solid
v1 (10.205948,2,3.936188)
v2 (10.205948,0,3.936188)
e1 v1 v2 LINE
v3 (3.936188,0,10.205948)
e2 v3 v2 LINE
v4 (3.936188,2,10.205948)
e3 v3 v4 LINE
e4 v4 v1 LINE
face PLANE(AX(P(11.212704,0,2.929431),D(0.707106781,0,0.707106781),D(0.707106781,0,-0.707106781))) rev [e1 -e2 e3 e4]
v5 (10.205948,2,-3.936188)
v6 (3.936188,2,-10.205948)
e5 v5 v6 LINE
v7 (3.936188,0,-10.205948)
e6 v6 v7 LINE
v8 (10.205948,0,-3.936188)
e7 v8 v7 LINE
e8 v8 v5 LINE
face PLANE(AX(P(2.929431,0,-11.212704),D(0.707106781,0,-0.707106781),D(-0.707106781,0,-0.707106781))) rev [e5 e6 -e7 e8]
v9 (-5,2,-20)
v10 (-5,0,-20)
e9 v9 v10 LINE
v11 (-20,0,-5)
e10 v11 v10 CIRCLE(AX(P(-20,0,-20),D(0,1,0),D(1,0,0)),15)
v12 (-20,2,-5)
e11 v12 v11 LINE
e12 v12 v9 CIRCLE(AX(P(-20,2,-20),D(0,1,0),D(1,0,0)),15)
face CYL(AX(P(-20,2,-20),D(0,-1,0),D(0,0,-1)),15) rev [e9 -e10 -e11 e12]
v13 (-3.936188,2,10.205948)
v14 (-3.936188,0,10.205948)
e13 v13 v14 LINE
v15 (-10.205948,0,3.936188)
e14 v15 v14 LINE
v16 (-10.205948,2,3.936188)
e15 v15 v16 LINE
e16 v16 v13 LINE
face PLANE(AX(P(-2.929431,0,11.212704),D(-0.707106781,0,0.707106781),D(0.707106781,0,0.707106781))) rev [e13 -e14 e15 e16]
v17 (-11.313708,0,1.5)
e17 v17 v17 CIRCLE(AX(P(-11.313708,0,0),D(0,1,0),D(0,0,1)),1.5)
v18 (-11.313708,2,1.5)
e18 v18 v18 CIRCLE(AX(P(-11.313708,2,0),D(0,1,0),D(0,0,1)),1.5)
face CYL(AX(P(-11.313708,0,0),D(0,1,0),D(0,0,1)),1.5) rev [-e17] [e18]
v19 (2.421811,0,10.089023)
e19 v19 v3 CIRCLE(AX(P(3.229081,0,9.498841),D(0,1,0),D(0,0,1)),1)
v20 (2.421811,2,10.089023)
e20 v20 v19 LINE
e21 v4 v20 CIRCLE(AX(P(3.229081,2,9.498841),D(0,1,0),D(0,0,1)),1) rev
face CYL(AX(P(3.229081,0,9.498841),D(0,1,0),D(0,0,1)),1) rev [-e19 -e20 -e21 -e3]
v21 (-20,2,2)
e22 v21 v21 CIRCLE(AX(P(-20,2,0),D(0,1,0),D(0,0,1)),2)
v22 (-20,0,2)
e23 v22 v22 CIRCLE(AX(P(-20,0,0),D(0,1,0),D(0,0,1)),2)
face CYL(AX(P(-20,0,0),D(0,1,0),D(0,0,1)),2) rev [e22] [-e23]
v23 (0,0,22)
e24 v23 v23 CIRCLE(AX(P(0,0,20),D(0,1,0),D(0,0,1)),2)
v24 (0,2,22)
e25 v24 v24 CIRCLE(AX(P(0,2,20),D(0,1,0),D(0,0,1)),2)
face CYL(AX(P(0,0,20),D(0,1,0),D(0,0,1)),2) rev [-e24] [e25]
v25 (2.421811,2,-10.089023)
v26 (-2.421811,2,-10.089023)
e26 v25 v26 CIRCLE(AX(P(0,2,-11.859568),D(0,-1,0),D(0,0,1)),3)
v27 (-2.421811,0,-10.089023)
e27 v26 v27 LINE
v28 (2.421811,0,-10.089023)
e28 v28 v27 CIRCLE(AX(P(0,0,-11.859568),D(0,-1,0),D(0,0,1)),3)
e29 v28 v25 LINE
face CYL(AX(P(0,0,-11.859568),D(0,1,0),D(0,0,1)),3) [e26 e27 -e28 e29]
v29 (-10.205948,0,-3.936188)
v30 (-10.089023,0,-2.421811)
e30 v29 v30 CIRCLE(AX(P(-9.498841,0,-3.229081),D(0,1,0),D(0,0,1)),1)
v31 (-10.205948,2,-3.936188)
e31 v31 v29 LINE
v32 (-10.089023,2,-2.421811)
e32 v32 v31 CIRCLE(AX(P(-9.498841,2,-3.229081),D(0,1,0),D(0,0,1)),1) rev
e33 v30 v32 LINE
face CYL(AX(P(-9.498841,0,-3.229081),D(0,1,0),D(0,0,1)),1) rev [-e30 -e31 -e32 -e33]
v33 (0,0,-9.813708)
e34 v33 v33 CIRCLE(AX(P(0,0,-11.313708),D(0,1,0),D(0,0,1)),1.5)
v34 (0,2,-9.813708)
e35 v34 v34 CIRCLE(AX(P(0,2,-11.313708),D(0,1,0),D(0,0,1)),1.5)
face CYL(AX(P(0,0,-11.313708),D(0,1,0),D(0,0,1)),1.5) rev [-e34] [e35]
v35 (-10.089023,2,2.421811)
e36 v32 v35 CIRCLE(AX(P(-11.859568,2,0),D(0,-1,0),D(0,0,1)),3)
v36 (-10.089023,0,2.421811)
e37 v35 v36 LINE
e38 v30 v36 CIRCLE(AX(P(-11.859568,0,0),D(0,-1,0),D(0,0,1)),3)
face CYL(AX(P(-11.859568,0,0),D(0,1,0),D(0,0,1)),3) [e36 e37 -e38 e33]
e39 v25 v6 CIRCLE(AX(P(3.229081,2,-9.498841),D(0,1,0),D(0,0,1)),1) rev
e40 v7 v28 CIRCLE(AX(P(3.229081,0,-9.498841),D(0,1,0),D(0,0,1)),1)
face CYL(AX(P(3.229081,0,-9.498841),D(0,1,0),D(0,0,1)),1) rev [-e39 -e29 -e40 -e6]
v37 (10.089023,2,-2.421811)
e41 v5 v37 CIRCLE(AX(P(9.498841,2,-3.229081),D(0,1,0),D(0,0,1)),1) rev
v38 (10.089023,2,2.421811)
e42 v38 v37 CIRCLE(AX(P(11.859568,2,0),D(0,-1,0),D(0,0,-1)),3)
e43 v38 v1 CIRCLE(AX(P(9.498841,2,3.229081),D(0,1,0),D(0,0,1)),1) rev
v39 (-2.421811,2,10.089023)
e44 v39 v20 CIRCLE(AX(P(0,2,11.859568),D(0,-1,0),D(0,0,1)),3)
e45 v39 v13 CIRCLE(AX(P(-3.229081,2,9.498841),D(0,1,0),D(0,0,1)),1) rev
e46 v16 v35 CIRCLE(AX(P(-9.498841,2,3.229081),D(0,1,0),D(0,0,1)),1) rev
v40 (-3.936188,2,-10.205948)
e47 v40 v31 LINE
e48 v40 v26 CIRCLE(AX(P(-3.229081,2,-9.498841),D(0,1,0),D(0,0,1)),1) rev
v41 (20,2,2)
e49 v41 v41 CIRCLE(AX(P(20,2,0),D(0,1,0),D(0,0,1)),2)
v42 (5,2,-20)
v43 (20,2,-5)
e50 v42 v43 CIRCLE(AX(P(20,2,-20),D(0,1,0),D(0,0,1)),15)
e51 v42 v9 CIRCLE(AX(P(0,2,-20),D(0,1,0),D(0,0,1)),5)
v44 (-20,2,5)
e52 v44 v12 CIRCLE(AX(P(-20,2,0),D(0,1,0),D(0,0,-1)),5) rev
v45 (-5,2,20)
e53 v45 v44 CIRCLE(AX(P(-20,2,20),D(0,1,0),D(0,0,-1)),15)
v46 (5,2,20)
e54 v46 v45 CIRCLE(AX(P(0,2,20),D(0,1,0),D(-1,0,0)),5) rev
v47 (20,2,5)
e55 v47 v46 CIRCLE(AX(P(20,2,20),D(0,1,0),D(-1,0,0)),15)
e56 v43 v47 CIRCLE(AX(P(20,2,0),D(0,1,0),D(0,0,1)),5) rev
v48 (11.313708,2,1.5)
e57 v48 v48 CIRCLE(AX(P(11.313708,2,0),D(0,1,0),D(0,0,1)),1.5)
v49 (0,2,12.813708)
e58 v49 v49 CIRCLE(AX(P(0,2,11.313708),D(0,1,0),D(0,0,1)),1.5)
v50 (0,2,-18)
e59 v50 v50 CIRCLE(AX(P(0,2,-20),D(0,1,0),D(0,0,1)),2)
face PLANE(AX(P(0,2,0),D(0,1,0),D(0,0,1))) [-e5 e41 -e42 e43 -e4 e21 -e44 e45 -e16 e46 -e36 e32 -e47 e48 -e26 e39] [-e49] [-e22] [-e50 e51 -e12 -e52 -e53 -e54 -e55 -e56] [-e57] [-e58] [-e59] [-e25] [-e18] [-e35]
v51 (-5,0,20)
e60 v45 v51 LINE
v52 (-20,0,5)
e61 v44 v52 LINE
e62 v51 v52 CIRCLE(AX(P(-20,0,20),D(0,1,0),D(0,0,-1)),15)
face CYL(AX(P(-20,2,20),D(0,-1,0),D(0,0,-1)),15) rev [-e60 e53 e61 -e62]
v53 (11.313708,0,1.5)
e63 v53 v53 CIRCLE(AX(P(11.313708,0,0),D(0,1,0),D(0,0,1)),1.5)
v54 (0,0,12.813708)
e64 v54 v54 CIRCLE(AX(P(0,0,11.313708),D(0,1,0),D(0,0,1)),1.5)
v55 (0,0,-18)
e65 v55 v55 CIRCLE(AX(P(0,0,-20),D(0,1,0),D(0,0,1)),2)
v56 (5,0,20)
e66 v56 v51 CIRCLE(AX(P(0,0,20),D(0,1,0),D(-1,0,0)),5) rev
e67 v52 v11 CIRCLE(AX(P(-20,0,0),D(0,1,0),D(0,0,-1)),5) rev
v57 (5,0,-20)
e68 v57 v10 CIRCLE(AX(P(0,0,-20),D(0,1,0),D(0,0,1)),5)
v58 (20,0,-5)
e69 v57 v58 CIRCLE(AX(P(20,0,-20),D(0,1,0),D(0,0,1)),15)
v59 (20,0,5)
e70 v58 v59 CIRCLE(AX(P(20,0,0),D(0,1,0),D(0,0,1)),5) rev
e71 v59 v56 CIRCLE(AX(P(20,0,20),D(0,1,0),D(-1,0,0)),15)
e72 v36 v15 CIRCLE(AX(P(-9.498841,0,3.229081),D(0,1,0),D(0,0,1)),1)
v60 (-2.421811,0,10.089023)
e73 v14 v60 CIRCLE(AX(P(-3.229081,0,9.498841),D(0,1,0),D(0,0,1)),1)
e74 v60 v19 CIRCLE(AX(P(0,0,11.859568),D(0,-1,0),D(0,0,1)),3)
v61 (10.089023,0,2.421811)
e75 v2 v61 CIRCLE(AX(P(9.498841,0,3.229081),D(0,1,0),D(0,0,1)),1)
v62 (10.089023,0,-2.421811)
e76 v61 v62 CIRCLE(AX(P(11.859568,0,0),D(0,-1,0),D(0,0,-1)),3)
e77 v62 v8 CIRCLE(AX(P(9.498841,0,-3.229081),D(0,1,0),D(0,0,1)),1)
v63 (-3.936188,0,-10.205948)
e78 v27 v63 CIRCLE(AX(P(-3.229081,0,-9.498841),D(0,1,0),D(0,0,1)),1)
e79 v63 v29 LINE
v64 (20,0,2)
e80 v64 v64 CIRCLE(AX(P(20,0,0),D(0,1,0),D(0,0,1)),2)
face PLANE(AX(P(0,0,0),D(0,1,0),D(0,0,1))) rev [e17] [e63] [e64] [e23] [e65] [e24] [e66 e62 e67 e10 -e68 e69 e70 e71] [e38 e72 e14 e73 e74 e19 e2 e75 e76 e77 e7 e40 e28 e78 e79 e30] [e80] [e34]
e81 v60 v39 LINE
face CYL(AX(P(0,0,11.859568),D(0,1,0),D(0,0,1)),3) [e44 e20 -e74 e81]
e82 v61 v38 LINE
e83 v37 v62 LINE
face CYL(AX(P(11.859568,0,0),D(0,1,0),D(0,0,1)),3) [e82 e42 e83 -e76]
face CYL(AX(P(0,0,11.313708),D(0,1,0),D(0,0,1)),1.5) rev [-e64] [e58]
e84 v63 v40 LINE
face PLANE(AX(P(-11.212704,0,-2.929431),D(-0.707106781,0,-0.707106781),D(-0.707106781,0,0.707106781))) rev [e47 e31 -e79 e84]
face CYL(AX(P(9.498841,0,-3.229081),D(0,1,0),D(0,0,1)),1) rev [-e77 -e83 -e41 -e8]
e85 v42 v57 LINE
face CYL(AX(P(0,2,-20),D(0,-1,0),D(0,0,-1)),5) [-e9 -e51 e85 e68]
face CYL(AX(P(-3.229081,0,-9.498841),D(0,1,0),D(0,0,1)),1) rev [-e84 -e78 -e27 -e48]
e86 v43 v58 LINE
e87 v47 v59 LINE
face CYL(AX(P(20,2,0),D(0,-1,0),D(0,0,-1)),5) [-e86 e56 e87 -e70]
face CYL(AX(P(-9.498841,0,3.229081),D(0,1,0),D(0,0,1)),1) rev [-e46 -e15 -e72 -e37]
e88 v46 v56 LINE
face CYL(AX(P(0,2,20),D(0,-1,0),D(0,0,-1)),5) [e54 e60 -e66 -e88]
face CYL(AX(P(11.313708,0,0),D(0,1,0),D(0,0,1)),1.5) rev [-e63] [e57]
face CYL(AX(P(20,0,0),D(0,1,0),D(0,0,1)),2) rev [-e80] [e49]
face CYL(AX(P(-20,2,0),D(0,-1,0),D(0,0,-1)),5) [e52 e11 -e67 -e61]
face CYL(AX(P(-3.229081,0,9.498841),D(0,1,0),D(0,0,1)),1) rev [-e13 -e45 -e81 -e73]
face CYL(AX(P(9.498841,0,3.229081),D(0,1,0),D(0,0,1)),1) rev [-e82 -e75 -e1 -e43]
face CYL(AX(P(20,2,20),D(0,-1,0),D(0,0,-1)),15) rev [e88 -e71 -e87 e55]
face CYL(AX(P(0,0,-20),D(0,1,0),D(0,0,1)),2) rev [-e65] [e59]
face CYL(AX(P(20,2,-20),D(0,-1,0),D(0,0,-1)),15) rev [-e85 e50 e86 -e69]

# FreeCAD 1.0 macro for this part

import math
import FreeCAD as App
import Part
import Sketcher

V = App.Vector


def edges_at(feature, points):
    """Names of the edges that pass closest to the given points."""
    edges = feature.Shape.Edges
    near = lambda p: min(range(len(edges)), key=lambda i: edges[i].distToShape(Part.Vertex(*p))[0])
    return sorted({f"Edge{near(p) + 1}" for p in points})

doc = App.newDocument("Part")
params = doc.addObject("Spreadsheet::Sheet", "Params")
for row, (alias, value) in enumerate([
    ("sketch1_radius", "5 mm"),
    ("sketch1_radius2", "15 mm"),
    ("pad1_length", "2 mm"),
    ("sketch2_diameter", "3 mm"),
    ("sketch2_diameter2", "4 mm"),
    ("pocket1_length", "2 mm"),
    ("sketch3_radius", "3 mm"),
    ("pocket2_length", "2 mm"),
    ("fillet_radius", "1 mm"),
], start=1):
    params.set(f"A{row}", alias)
    params.set(f"B{row}", "=" + value)
    params.setAlias(f"B{row}", alias)

body = doc.addObject("PartDesign::Body", "Body")

# Sketch on XZ plane
sketch1 = body.newObject("Sketcher::SketchObject", "Sketch")
sketch1.AttachmentSupport = (doc.getObject("XZ_Plane"), [""])
sketch1.MapMode = "FlatFace"
sketch1.addGeometry(Part.LineSegment(V(0, -25, 0), V(0, 0, 0)), False)
sketch1.addGeometry(Part.LineSegment(V(0, 0, 0), V(25, 0, 0)), False)
sketch1.addGeometry(Part.ArcOfCircle(Part.Circle(V(20, 0, 0), V(0, 0, 1), 5), math.radians(-90), math.radians(0)), False)
sketch1.addGeometry(Part.ArcOfCircle(Part.Circle(V(20, -20, 0), V(0, 0, 1), 15), math.radians(90), math.radians(180)), False)
sketch1.addGeometry(Part.ArcOfCircle(Part.Circle(V(0, -20, 0), V(0, 0, 1), 5), math.radians(-90), math.radians(0)), False)
sketch1.addConstraint(Sketcher.Constraint("Coincident", 0, 2, 1, 1))
sketch1.addConstraint(Sketcher.Constraint("Coincident", 1, 2, 2, 2))
sketch1.addConstraint(Sketcher.Constraint("Tangent", 2, 1, 3, 1))
sketch1.addConstraint(Sketcher.Constraint("Tangent", 3, 2, 4, 2))
sketch1.addConstraint(Sketcher.Constraint("Coincident", 4, 1, 0, 1))
sketch1.addConstraint(Sketcher.Constraint("Vertical", 0))
sketch1.addConstraint(Sketcher.Constraint("Horizontal", 1))
sketch1.addConstraint(Sketcher.Constraint("Coincident", 0, 2, -1, 1))
sketch1.addConstraint(Sketcher.Constraint("Equal", 2, 4))
sketch1.addConstraint(Sketcher.Constraint("PointOnObject", 2, 3, -1))
sketch1.addConstraint(Sketcher.Constraint("PointOnObject", 4, 3, -2))
sketch1.addConstraint(Sketcher.Constraint("Horizontal", 3, 3, 4, 3))
sketch1.addConstraint(Sketcher.Constraint("Vertical", 2, 3, 3, 3))
sketch1.addConstraint(Sketcher.Constraint("Radius", 2, 5.0))
sketch1.addConstraint(Sketcher.Constraint("Radius", 3, 15.0))
sketch1.setExpression("Constraints[13]", "Params.sketch1_radius")
sketch1.setExpression("Constraints[14]", "Params.sketch1_radius2")
pad1 = body.newObject("PartDesign::Pad", "Pad")
pad1.Profile = sketch1
pad1.setExpression("Length", "Params.pad1_length")
pad1.Reversed = True
doc.recompute()

polarpattern = body.newObject("PartDesign::PolarPattern", "PolarPattern")
polarpattern.Originals = [pad1]
polarpattern.Axis = (doc.getObject("Y_Axis"), [""])
polarpattern.Angle = 360
polarpattern.Occurrences = 4
body.Tip = polarpattern

# Sketch on XZ plane
sketch2 = body.newObject("Sketcher::SketchObject", "Sketch001")
sketch2.AttachmentSupport = (doc.getObject("XZ_Plane"), [""])
sketch2.MapMode = "FlatFace"
sketch2.AttachmentOffset = App.Placement(V(0, 0, -2), App.Rotation())
sketch2.addGeometry(Part.Circle(V(0, -11.313708, 0), V(0, 0, 1), 1.5), False)
sketch2.addGeometry(Part.Circle(V(0, -20, 0), V(0, 0, 1), 2), False)
sketch2.addGeometry(Part.Circle(V(11.313708, 0, 0), V(0, 0, 1), 1.5), False)
sketch2.addGeometry(Part.Circle(V(20, 0, 0), V(0, 0, 1), 2), False)
sketch2.addGeometry(Part.Circle(V(0, 11.313708, 0), V(0, 0, 1), 1.5), False)
sketch2.addGeometry(Part.Circle(V(0, 20, 0), V(0, 0, 1), 2), False)
sketch2.addGeometry(Part.Circle(V(-11.313708, 0, 0), V(0, 0, 1), 1.5), False)
sketch2.addGeometry(Part.Circle(V(-20, 0, 0), V(0, 0, 1), 2), False)
sketch2.addConstraint(Sketcher.Constraint("Equal", 0, 2))
sketch2.addConstraint(Sketcher.Constraint("Equal", 1, 3))
sketch2.addConstraint(Sketcher.Constraint("Equal", 2, 4))
sketch2.addConstraint(Sketcher.Constraint("Equal", 3, 5))
sketch2.addConstraint(Sketcher.Constraint("Equal", 4, 6))
sketch2.addConstraint(Sketcher.Constraint("Equal", 5, 7))
sketch2.addConstraint(Sketcher.Constraint("Symmetric", 0, 3, 4, 3, -1, 1))
sketch2.addConstraint(Sketcher.Constraint("Symmetric", 1, 3, 5, 3, -1, 1))
sketch2.addConstraint(Sketcher.Constraint("Symmetric", 2, 3, 6, 3, -1, 1))
sketch2.addConstraint(Sketcher.Constraint("Symmetric", 3, 3, 7, 3, -1, 1))
sketch2.addConstraint(Sketcher.Constraint("PointOnObject", 0, 3, -2))
sketch2.addConstraint(Sketcher.Constraint("PointOnObject", 1, 3, -2))
sketch2.addConstraint(Sketcher.Constraint("PointOnObject", 2, 3, -1))
sketch2.addConstraint(Sketcher.Constraint("PointOnObject", 3, 3, -1))
sketch2.addConstraint(Sketcher.Constraint("Diameter", 0, 3.0))
sketch2.addConstraint(Sketcher.Constraint("Diameter", 1, 4.0))
sketch2.addConstraint(Sketcher.Constraint("DistanceY", 1, 3, -1, 1, 20.0))
sketch2.addConstraint(Sketcher.Constraint("DistanceX", -1, 1, 3, 3, 20.0))
sketch2.addConstraint(Sketcher.Constraint("DistanceY", 0, 3, -1, 1, 11.313708))
sketch2.addConstraint(Sketcher.Constraint("DistanceX", -1, 1, 2, 3, 11.313708))
sketch2.setExpression("Constraints[14]", "Params.sketch2_diameter")
sketch2.setExpression("Constraints[15]", "Params.sketch2_diameter2")
pocket1 = body.newObject("PartDesign::Pocket", "Pocket")
pocket1.Profile = sketch2
pocket1.setExpression("Length", "Params.pocket1_length")
pocket1.Reversed = True

# Sketch on XZ plane
sketch3 = body.newObject("Sketcher::SketchObject", "Sketch002")
sketch3.AttachmentSupport = (doc.getObject("XZ_Plane"), [""])
sketch3.MapMode = "FlatFace"
sketch3.AttachmentOffset = App.Placement(V(0, 0, -2), App.Rotation())
sketch3.addGeometry(Part.LineSegment(V(-2.929431, -11.212704, 0), V(-11.212704, -2.929431, 0)), False)
sketch3.addGeometry(Part.ArcOfCircle(Part.Circle(V(-11.859568, 0, 0), V(0, 0, 1), 3), math.radians(-77.548021), math.radians(77.548021)), False)
sketch3.addGeometry(Part.LineSegment(V(-11.212704, 2.929431, 0), V(-2.929431, 11.212704, 0)), False)
sketch3.addGeometry(Part.ArcOfCircle(Part.Circle(V(0, 11.859568, 0), V(0, 0, 1), 3), math.radians(-167.548021), math.radians(-12.451979)), False)
sketch3.addGeometry(Part.LineSegment(V(2.929431, 11.212704, 0), V(11.212704, 2.929431, 0)), False)
sketch3.addGeometry(Part.ArcOfCircle(Part.Circle(V(11.859568, 0, 0), V(0, 0, 1), 3), math.radians(102.451979), math.radians(257.548021)), False)
sketch3.addGeometry(Part.LineSegment(V(11.212704, -2.929431, 0), V(2.929431, -11.212704, 0)), False)
sketch3.addGeometry(Part.ArcOfCircle(Part.Circle(V(0, -11.859568, 0), V(0, 0, 1), 3), math.radians(12.451979), math.radians(167.548021)), False)
sketch3.addConstraint(Sketcher.Constraint("Coincident", 0, 2, 1, 1))
sketch3.addConstraint(Sketcher.Constraint("Coincident", 1, 2, 2, 1))
sketch3.addConstraint(Sketcher.Constraint("Coincident", 2, 2, 3, 1))
sketch3.addConstraint(Sketcher.Constraint("Coincident", 3, 2, 4, 1))
sketch3.addConstraint(Sketcher.Constraint("Coincident", 4, 2, 5, 1))
sketch3.addConstraint(Sketcher.Constraint("Coincident", 5, 2, 6, 1))
sketch3.addConstraint(Sketcher.Constraint("Coincident", 6, 2, 7, 1))
sketch3.addConstraint(Sketcher.Constraint("Coincident", 7, 2, 0, 1))
sketch3.addConstraint(Sketcher.Constraint("Equal", 1, 3))
sketch3.addConstraint(Sketcher.Constraint("Equal", 3, 5))
sketch3.addConstraint(Sketcher.Constraint("Equal", 5, 7))
sketch3.addConstraint(Sketcher.Constraint("Symmetric", 1, 3, 5, 3, -1, 1))
sketch3.addConstraint(Sketcher.Constraint("Symmetric", 3, 3, 7, 3, -1, 1))
sketch3.addConstraint(Sketcher.Constraint("Symmetric", 2, 2, 3, 2, -2))
sketch3.addConstraint(Sketcher.Constraint("Symmetric", 1, 2, 4, 2, -2))
sketch3.addConstraint(Sketcher.Constraint("Perpendicular", 0, 2))
sketch3.addConstraint(Sketcher.Constraint("Perpendicular", 2, 4))
sketch3.addConstraint(Sketcher.Constraint("Perpendicular", 4, 6))
sketch3.addConstraint(Sketcher.Constraint("Horizontal", 0, 2, 5, 2))
sketch3.addConstraint(Sketcher.Constraint("Vertical", 0, 2, 1, 2))
sketch3.addConstraint(Sketcher.Constraint("Radius", 1, 3.0))
sketch3.addConstraint(Sketcher.Constraint("DistanceY", 0, 2, 3, 3, 14.788999))
sketch3.addConstraint(Sketcher.Constraint("DistanceX", 2, 2, 5, 3, 14.788999))
sketch3.addConstraint(Sketcher.Constraint("DistanceX", 1, 3, -1, 1, 11.859568))
sketch3.setExpression("Constraints[20]", "Params.sketch3_radius")
pocket2 = body.newObject("PartDesign::Pocket", "Pocket001")
pocket2.Profile = sketch3
pocket2.setExpression("Length", "Params.pocket2_length")
pocket2.Reversed = True
doc.recompute()

fillet = body.newObject("PartDesign::Fillet", "Fillet")
fillet.Base = (pocket2, edges_at(pocket2, [
    (-11.213, 1, 2.929),
    (-11.213, 1, -2.929),
    (-2.929, 1, -11.213),
    (2.929, 1, -11.213),
    (11.213, 1, -2.929),
    (11.213, 1, 2.929),
    (2.929, 1, 11.213),
    (-2.929, 1, 11.213),
]))
fillet.setExpression("Radius", "Params.fillet_radius")

doc.recompute()
